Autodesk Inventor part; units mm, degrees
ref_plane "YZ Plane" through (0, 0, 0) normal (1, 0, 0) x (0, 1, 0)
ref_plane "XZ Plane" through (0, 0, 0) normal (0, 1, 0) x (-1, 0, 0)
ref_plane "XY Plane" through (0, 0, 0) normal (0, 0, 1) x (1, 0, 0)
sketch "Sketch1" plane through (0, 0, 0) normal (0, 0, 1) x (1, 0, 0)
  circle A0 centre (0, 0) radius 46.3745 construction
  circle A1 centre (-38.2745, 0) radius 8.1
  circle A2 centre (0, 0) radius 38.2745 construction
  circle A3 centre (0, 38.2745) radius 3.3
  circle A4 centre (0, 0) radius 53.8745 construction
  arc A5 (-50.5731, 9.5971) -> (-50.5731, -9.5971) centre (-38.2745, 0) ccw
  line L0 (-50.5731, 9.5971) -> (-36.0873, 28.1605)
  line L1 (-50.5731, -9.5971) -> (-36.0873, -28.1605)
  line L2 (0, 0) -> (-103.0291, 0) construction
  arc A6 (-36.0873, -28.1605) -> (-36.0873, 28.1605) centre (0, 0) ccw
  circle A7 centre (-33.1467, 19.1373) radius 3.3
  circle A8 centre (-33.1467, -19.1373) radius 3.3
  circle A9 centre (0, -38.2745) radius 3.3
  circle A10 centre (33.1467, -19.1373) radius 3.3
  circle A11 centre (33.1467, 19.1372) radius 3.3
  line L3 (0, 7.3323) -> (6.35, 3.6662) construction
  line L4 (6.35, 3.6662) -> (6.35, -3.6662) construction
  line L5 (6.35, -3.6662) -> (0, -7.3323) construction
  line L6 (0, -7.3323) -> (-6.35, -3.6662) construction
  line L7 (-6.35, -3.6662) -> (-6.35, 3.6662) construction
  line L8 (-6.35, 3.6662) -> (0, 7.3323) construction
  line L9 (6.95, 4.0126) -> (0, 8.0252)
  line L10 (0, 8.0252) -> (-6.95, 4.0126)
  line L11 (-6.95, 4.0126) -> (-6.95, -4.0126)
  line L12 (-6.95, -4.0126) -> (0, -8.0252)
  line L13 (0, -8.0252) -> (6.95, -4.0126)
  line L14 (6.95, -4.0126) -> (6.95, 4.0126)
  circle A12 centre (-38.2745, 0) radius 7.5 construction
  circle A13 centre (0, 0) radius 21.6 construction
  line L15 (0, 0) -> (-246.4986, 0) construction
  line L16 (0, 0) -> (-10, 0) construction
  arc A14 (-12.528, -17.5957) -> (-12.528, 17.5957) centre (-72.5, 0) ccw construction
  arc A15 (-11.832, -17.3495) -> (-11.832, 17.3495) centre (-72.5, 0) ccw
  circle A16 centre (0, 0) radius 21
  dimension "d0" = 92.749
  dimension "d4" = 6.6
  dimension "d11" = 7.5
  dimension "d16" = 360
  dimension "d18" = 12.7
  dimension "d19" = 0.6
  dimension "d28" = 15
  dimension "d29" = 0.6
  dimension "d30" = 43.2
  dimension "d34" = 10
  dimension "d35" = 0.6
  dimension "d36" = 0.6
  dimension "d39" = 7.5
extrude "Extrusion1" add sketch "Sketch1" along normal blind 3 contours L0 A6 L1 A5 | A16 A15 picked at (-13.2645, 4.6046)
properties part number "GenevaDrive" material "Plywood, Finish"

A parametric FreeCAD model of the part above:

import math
import FreeCAD as App
import Part
import Sketcher
from FreeCAD import Vector

doc = App.newDocument("Part")
body = doc.addObject("PartDesign::Body", "Body")

sketch1 = doc.addObject("Sketcher::SketchObject", "Sketch")
body.addObject(sketch1)
sketch1.AttachmentSupport = (doc.XY_Plane, [""])
sketch1.MapMode = "FlatFace"
sketch1.addGeometry([
    Part.LineSegment(Vector(-36.0873, 28.1605, 0), Vector(-50.5731, 9.5971, 0)),
    Part.ArcOfCircle(Part.Circle(Vector(-38.2745, 0, 0), Vector(0, 0, 1), 15.599996), math.radians(142.033629), math.radians(217.966371)),
    Part.LineSegment(Vector(-50.5731, -9.5971, 0), Vector(-36.0873, -28.1605, 0)),
    Part.ArcOfCircle(Part.Circle(Vector(0, 0, 0), Vector(0, 0, 1), 45.774523), math.radians(-142.033525), math.radians(142.033525)),
    Part.Circle(Vector(-33.1467, -19.1373, 0), Vector(0, 0, 1), 3.3),
    Part.Circle(Vector(0, -38.2745, 0), Vector(0, 0, 1), 3.3),
    Part.Circle(Vector(33.1467, -19.1373, 0), Vector(0, 0, 1), 3.3),
    Part.Circle(Vector(-38.2745, 0, 0), Vector(0, 0, 1), 8.1),
    Part.Circle(Vector(-33.1467, 19.1373, 0), Vector(0, 0, 1), 3.3),
    Part.ArcOfCircle(Part.Circle(Vector(-72.5, 0, 0), Vector(0, 0, 1), 63.100011), math.radians(-15.959178), math.radians(15.959178)),
    Part.ArcOfCircle(Part.Circle(Vector(0, 0, 0), Vector(0, 0, 1), 21), math.radians(-124.293179), math.radians(124.293179)),
    Part.Circle(Vector(33.1467, 19.1372, 0), Vector(0, 0, 1), 3.3),
    Part.Circle(Vector(0, 38.2745, 0), Vector(0, 0, 1), 3.3),
], False)
sketch1.addConstraint([
    Sketcher.Constraint("Tangent", 0, 2, 1, 1),
    Sketcher.Constraint("Tangent", 1, 2, 2, 1),
    Sketcher.Constraint("Tangent", 2, 2, 3, 1),
    Sketcher.Constraint("Tangent", 3, 2, 0, 1),
    Sketcher.Constraint("Coincident", 9, 1, 10, 1),
    Sketcher.Constraint("Coincident", 10, 2, 9, 2),
    Sketcher.Constraint("Coincident", 3, 3, -1, 1),
    Sketcher.Constraint("Coincident", 10, 3, -1, 1),
    Sketcher.Constraint("Coincident", 7, 3, 1, 3),
    Sketcher.Constraint("Equal", 4, 5),
    Sketcher.Constraint("Equal", 5, 6),
    Sketcher.Constraint("Equal", 6, 8),
    Sketcher.Constraint("Equal", 8, 11),
    Sketcher.Constraint("Equal", 11, 12),
    Sketcher.Constraint("Symmetric", 6, 3, 8, 3, -1, 1),
    Sketcher.Constraint("Symmetric", 4, 3, 11, 3, -1, 1),
    Sketcher.Constraint("Symmetric", 5, 3, 12, 3, -1, 1),
    Sketcher.Constraint("Symmetric", 4, 3, 6, 3, -2),
    Sketcher.Constraint("PointOnObject", 1, 3, -1),
    Sketcher.Constraint("PointOnObject", 5, 3, -2),
    Sketcher.Constraint("PointOnObject", 9, 3, -1),
    Sketcher.Constraint("Diameter", 4, 6.6),
    Sketcher.Constraint("Radius", 10, 21.0),
    Sketcher.Constraint("Diameter", 7, 16.2),
    Sketcher.Constraint("Radius", 1, 15.6),
    Sketcher.Constraint("Radius", 9, 63.1),
    Sketcher.Constraint("DistanceX", 9, 3, -1, 1, 72.5),
    Sketcher.Constraint("Radius", 3, 45.7745),
    Sketcher.Constraint("DistanceX", 0, 2, -1, 1, 50.573),
    Sketcher.Constraint("DistanceY", 5, 3, 2, 2, 10.114),
    Sketcher.Constraint("DistanceX", 4, 3, -1, 1, 33.1467),
    Sketcher.Constraint("DistanceY", 4, 3, -1, 1, 19.1373),
])
pad1 = doc.addObject("PartDesign::Pad", "Pad")
body.addObject(pad1)
pad1.Profile = sketch1
pad1.Length = 3

doc.recompute()
